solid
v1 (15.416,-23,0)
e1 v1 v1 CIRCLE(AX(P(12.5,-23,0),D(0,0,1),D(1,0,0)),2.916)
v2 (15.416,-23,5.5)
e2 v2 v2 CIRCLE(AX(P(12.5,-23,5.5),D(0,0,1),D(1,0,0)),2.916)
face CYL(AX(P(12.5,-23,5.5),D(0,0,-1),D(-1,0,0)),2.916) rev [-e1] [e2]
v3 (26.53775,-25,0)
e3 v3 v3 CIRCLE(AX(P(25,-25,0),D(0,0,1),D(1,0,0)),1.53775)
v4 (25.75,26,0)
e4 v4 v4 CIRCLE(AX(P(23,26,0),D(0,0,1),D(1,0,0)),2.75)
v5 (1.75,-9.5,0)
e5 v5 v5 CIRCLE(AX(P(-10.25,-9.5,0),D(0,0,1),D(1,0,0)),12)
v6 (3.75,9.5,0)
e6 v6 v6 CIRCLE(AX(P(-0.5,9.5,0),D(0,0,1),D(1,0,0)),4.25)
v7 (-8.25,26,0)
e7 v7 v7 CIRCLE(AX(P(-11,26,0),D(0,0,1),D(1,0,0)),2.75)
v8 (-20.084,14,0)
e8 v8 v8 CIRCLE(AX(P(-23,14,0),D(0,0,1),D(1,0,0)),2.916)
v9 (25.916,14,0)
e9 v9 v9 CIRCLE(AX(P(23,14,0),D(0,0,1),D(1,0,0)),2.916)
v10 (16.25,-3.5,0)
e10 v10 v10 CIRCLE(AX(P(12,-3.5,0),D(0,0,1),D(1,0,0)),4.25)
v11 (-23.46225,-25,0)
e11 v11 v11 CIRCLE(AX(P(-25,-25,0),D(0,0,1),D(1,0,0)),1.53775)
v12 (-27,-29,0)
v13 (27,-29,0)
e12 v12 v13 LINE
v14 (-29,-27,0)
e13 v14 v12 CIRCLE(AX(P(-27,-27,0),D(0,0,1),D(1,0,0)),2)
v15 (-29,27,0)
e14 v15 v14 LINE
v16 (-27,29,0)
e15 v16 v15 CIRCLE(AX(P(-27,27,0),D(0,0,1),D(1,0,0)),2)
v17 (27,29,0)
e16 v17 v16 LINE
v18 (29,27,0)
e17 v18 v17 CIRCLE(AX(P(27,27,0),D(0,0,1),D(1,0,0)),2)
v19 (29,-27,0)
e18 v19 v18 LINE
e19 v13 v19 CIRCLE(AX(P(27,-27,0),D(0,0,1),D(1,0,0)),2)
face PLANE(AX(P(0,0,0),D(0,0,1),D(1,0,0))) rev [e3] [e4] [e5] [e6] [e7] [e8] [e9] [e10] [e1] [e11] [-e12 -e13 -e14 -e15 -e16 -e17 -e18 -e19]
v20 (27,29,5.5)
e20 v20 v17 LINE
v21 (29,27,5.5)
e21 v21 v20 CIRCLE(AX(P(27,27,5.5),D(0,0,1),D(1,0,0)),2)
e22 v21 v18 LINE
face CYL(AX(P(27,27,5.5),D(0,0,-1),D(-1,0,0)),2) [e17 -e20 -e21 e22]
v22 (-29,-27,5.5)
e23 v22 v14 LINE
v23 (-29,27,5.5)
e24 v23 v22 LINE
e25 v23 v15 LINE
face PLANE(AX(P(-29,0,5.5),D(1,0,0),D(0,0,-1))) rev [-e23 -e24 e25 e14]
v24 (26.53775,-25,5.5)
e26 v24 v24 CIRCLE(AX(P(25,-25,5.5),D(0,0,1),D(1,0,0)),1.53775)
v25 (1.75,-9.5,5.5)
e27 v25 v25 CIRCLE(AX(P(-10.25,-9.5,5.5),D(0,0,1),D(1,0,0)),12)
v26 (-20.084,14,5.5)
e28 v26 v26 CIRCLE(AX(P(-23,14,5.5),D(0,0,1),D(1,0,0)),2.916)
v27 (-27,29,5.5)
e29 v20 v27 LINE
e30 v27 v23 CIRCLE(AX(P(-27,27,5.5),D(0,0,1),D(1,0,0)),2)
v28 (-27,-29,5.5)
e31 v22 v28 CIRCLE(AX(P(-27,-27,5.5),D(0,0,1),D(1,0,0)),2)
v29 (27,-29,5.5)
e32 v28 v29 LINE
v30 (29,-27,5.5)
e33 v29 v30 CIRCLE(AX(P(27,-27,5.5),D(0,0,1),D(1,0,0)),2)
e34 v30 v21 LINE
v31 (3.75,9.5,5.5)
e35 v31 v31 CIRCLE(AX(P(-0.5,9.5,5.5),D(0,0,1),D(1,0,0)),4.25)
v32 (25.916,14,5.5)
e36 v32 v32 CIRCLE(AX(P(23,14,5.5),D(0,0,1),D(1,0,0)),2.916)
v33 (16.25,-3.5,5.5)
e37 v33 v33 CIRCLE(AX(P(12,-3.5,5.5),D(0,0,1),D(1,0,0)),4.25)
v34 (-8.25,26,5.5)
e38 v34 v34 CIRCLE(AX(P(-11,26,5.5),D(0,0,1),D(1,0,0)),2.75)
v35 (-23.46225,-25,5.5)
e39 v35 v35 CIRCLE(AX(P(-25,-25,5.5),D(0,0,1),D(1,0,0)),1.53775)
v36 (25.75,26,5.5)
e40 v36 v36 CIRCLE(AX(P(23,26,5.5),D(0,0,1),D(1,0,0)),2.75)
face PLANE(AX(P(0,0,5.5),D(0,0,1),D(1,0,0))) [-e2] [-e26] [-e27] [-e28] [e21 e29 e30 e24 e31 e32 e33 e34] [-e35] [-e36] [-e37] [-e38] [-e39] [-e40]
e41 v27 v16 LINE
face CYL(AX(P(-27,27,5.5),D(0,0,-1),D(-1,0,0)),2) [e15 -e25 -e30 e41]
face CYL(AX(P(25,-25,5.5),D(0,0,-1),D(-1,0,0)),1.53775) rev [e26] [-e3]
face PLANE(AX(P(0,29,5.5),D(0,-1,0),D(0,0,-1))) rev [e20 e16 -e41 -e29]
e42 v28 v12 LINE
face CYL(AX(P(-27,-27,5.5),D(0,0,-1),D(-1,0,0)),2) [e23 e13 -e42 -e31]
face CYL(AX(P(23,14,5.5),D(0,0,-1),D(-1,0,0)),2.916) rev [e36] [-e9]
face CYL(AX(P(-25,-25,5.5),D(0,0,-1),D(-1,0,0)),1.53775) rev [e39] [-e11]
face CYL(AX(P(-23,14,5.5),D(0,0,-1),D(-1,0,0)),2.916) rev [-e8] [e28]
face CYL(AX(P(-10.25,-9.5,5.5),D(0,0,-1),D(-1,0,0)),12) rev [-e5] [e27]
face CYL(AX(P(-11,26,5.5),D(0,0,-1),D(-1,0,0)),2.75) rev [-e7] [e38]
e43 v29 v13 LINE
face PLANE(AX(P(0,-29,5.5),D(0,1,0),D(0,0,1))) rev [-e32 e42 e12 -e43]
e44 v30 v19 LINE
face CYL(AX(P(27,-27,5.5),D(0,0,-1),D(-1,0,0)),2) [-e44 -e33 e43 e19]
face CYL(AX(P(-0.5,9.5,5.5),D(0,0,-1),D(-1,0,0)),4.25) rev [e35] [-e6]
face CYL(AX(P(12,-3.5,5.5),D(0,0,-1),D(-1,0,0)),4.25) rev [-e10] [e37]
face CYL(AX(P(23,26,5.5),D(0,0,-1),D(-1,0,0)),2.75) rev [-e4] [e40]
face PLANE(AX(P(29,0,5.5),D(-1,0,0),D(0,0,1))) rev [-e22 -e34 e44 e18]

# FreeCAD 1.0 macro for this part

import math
import FreeCAD as App
import Part
import Sketcher

V = App.Vector

doc = App.newDocument("Part")
params = doc.addObject("Spreadsheet::Sheet", "Params")
for row, (alias, value) in enumerate([
    ("sketch1_diameter", "24 mm"),
    ("sketch1_radius", "2 mm"),
    ("sketch1_diameter2", "8.5 mm"),
    ("sketch1_diameter3", "5.5 mm"),
    ("sketch1_width", "54 mm"),
    ("pad1_length", "5.5 mm"),
], start=1):
    params.set(f"A{row}", alias)
    params.set(f"B{row}", "=" + value)
    params.setAlias(f"B{row}", alias)

body = doc.addObject("PartDesign::Body", "Body")

# Sketch on XY plane
sketch1 = body.newObject("Sketcher::SketchObject", "Sketch")
sketch1.AttachmentSupport = (doc.getObject("XY_Plane"), [""])
sketch1.MapMode = "FlatFace"
sketch1.addGeometry([
    Part.LineSegment(V(29, -27, 0), V(29, 27, 0)),  # 0
    Part.ArcOfCircle(Part.Circle(V(27, 27, 0), V(0, 0, 1), 2), math.radians(0), math.radians(90)),  # 1
    Part.LineSegment(V(27, 29, 0), V(-27, 29, 0)),  # 2
    Part.ArcOfCircle(Part.Circle(V(-27, 27, 0), V(0, 0, 1), 2), math.radians(90), math.radians(180)),  # 3
    Part.LineSegment(V(-29, 27, 0), V(-29, -27, 0)),  # 4
    Part.ArcOfCircle(Part.Circle(V(-27, -27, 0), V(0, 0, 1), 2), math.radians(-180), math.radians(-90)),  # 5
    Part.LineSegment(V(-27, -29, 0), V(27, -29, 0)),  # 6
    Part.ArcOfCircle(Part.Circle(V(27, -27, 0), V(0, 0, 1), 2), math.radians(-90), math.radians(0)),  # 7
    Part.Circle(V(-25, -25, 0), V(0, 0, 1), 1.5),  # 8
    Part.Circle(V(-10.2, -9.5, 0), V(0, 0, 1), 12),  # 9
    Part.Circle(V(12.5, -23, 0), V(0, 0, 1), 2.9),  # 10
    Part.Circle(V(25, -25, 0), V(0, 0, 1), 1.5),  # 11
    Part.Circle(V(12, -3.5, 0), V(0, 0, 1), 4.2),  # 12
    Part.Circle(V(-23, 14, 0), V(0, 0, 1), 2.9),  # 13
    Part.Circle(V(-0.5, 9.5, 0), V(0, 0, 1), 4.2),  # 14
    Part.Circle(V(-11, 26, 0), V(0, 0, 1), 2.8),  # 15
    Part.Circle(V(23, 14, 0), V(0, 0, 1), 2.9),  # 16
    Part.Circle(V(23, 26, 0), V(0, 0, 1), 2.8),  # 17
], False)
sketch1.addConstraint([
    Sketcher.Constraint("Tangent", 0, 2, 1, 1),
    Sketcher.Constraint("Tangent", 1, 2, 2, 1),
    Sketcher.Constraint("Tangent", 2, 2, 3, 1),
    Sketcher.Constraint("Tangent", 3, 2, 4, 1),
    Sketcher.Constraint("Tangent", 4, 2, 5, 1),
    Sketcher.Constraint("Tangent", 5, 2, 6, 1),
    Sketcher.Constraint("Tangent", 6, 2, 7, 1),
    Sketcher.Constraint("Tangent", 7, 2, 0, 1),
    Sketcher.Constraint("Vertical", 0),
    Sketcher.Constraint("Horizontal", 2),
    Sketcher.Constraint("Vertical", 4),
    Sketcher.Constraint("Horizontal", 6),
    Sketcher.Constraint("Equal", 1, 3),
    Sketcher.Constraint("Equal", 3, 5),
    Sketcher.Constraint("Equal", 5, 7),
    Sketcher.Constraint("Equal", 8, 11),
    Sketcher.Constraint("Equal", 10, 13),
    Sketcher.Constraint("Equal", 12, 14),
    Sketcher.Constraint("Equal", 13, 16),
    Sketcher.Constraint("Equal", 15, 17),
    Sketcher.Constraint("Symmetric", 1, 3, 5, 3, -1, 1),
    Sketcher.Constraint("Symmetric", 8, 3, 11, 3, -2),
    Sketcher.Constraint("Symmetric", 13, 3, 16, 3, -2),
    Sketcher.Constraint("Horizontal", 15, 3, 17, 3),
    Sketcher.Constraint("Vertical", 16, 3, 17, 3),
    Sketcher.Constraint("Equal", 6, 0),
    Sketcher.Constraint("Diameter", 9, 24.0),
    Sketcher.Constraint("Radius", 1, 2.0),
    Sketcher.Constraint("Diameter", 12, 8.5),
    Sketcher.Constraint("Diameter", 15, 5.5),
    Sketcher.Constraint("DistanceX", 2, 2, 2, 1, 54.0),
    Sketcher.Constraint("Diameter", 10, 5.832),
    Sketcher.Constraint("DistanceX", 8, 3, -1, 1, 25.0),
    Sketcher.Constraint("DistanceY", 8, 3, -1, 1, 25.0),
    Sketcher.Constraint("DistanceY", 10, 3, -1, 1, 23.0),
    Sketcher.Constraint("DistanceX", -1, 1, 12, 3, 12.0),
    Sketcher.Constraint("DistanceX", 13, 3, -1, 1, 23.0),
    Sketcher.Constraint("DistanceY", -1, 1, 13, 3, 14.0),
    Sketcher.Constraint("DistanceX", 15, 3, -1, 1, 11.0),
    Sketcher.Constraint("DistanceY", -1, 1, 15, 3, 26.0),
    Sketcher.Constraint("DistanceY", 9, 3, 12, 3, 6.0),
    Sketcher.Constraint("DistanceY", 12, 3, 14, 3, 13.0),
    Sketcher.Constraint("Diameter", 8, 3.0755),
    Sketcher.Constraint("DistanceY", 9, 3, -1, 1, 9.5),
    Sketcher.Constraint("DistanceX", -1, 1, 10, 3, 12.5),
    Sketcher.Constraint("DistanceX", 14, 3, -1, 1, 0.5),
    Sketcher.Constraint("DistanceX", 9, 3, -1, 1, 10.25),
])
sketch1.setExpression("Constraints[26]", "Params.sketch1_diameter")
sketch1.setExpression("Constraints[27]", "Params.sketch1_radius")
sketch1.setExpression("Constraints[28]", "Params.sketch1_diameter2")
sketch1.setExpression("Constraints[29]", "Params.sketch1_diameter3")
sketch1.setExpression("Constraints[30]", "Params.sketch1_width")
pad1 = body.newObject("PartDesign::Pad", "Pad")
pad1.Profile = sketch1
pad1.setExpression("Length", "Params.pad1_length")

doc.recompute()
